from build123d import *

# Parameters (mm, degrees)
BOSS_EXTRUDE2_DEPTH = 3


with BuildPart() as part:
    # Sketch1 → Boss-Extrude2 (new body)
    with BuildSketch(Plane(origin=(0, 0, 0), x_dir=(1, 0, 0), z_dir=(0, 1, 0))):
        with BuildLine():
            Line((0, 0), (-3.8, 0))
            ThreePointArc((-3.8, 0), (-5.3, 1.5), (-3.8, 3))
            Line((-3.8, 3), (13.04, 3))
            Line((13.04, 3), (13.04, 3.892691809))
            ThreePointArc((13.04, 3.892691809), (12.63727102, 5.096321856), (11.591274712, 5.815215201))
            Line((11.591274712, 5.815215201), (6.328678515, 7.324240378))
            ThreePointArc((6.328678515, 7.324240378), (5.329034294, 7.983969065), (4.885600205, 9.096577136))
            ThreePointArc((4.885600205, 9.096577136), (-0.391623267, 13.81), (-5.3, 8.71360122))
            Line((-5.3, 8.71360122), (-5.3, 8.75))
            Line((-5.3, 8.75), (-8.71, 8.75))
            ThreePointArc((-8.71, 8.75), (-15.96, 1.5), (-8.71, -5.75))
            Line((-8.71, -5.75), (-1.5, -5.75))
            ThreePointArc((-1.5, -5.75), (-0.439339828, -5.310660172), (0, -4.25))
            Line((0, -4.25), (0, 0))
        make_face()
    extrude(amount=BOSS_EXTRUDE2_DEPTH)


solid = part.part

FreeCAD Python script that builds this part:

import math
import FreeCAD as App
import Part
import Sketcher
from FreeCAD import Vector
Q = App.Units.Quantity

doc = App.newDocument("Part")
body = doc.addObject("PartDesign::Body", "Body")

# Sketch on XZ plane
sketch1 = body.newObject("Sketcher::SketchObject", "Sketch")
sketch1.AttachmentSupport = (doc.getObject("XZ_Plane"), [""])
sketch1.MapMode = "FlatFace"
sketch1.addGeometry([
    Part.LineSegment(Vector(0, 0, 0), Vector(-3.8, 0, 0)),  # 0
    Part.ArcOfCircle(Part.Circle(Vector(-3.8, -1.5, 0), Vector(0, 0, 1), 1.5), math.radians(90), math.radians(270)),  # 1
    Part.LineSegment(Vector(-3.8, -3, 0), Vector(13.04, -3, 0)),  # 2
    Part.LineSegment(Vector(13.04, -3, 0), Vector(13.04, -3.893, 0)),  # 3
    Part.ArcOfCircle(Part.Circle(Vector(11.04, -3.893, 0), Vector(0, 0, 1), 2), math.radians(-74), math.radians(0)),  # 4
    Part.LineSegment(Vector(11.591, -5.815, 0), Vector(6.329, -7.324, 0)),  # 5
    Part.ArcOfCircle(Part.Circle(Vector(6.88, -9.247, 0), Vector(0, 0, 1), 2), math.radians(106), math.radians(176)),  # 6
    Part.ArcOfCircle(Part.Circle(Vector(-0.2, -8.714, 0), Vector(0, 0, 1), 5.1), math.radians(180), math.radians(356)),  # 7
    Part.LineSegment(Vector(-5.3, -8.714, 0), Vector(-5.3, -8.75, 0)),  # 8
    Part.LineSegment(Vector(-5.3, -8.75, 0), Vector(-8.71, -8.75, 0)),  # 9
    Part.ArcOfCircle(Part.Circle(Vector(-8.71, -1.5, 0), Vector(0, 0, 1), 7.25), math.radians(90), math.radians(270)),  # 10
    Part.LineSegment(Vector(-8.71, 5.75, 0), Vector(-1.5, 5.75, 0)),  # 11
    Part.ArcOfCircle(Part.Circle(Vector(-1.5, 4.25, 0), Vector(0, 0, 1), 1.5), math.radians(0), math.radians(90)),  # 12
    Part.LineSegment(Vector(0, 4.25, 0), Vector(0, 0, 0)),  # 13
], False)
sketch1.addConstraint([
    Sketcher.Constraint("Tangent", 0, 2, 1, 1),
    Sketcher.Constraint("Tangent", 1, 2, 2, 1),
    Sketcher.Constraint("Coincident", 2, 2, 3, 1),
    Sketcher.Constraint("Tangent", 3, 2, 4, 2),
    Sketcher.Constraint("Tangent", 4, 1, 5, 1),
    Sketcher.Constraint("Tangent", 5, 2, 6, 1),
    Sketcher.Constraint("Tangent", 6, 2, 7, 2),
    Sketcher.Constraint("Tangent", 7, 1, 8, 1),
    Sketcher.Constraint("Coincident", 8, 2, 9, 1),
    Sketcher.Constraint("Tangent", 9, 2, 10, 2),
    Sketcher.Constraint("Tangent", 10, 1, 11, 1),
    Sketcher.Constraint("Tangent", 11, 2, 12, 2),
    Sketcher.Constraint("Tangent", 12, 1, 13, 1),
    Sketcher.Constraint("Coincident", 13, 2, 0, 1),
    Sketcher.Constraint("Horizontal", 0),
    Sketcher.Constraint("Horizontal", 2),
    Sketcher.Constraint("Vertical", 3),
    Sketcher.Constraint("Vertical", 8),
    Sketcher.Constraint("Horizontal", 9),
    Sketcher.Constraint("Horizontal", 11),
    Sketcher.Constraint("Vertical", 13),
    Sketcher.Constraint("Coincident", 13, 2, -1, 1),
    Sketcher.Constraint("Equal", 4, 6),
    Sketcher.Constraint("Equal", 1, 12),
    Sketcher.Constraint("Horizontal", 1, 3, 10, 3),
    Sketcher.Constraint("Radius", 4, Q("2 mm")),
    Sketcher.Constraint("Radius", 1, Q("1.5 mm")),
    Sketcher.Constraint("Radius", 7, Q("5.1 mm")),
    Sketcher.Constraint("Angle", 5, Q("-164 deg")),
    Sketcher.Constraint("Radius", 10, Q("7.25 mm")),
    Sketcher.Constraint("DistanceX", 0, 2, 0, 1, Q("3.8 mm")),
    Sketcher.Constraint("DistanceX", 2, 1, 2, 2, Q("16.84 mm")),
    Sketcher.Constraint("DistanceX", 9, 2, 9, 1, Q("3.41 mm")),
    Sketcher.Constraint("DistanceX", 11, 1, 11, 2, Q("7.21 mm")),
    Sketcher.Constraint("DistanceY", 8, 2, 8, 1, Q("0.036399 mm")),
    Sketcher.Constraint("DistanceY", 3, 2, 3, 1, Q("0.892692 mm")),
])
pad1 = body.newObject("PartDesign::Pad", "Pad")
pad1.Profile = sketch1
pad1.Length = 3
pad1.Reversed = True

doc.recompute()
